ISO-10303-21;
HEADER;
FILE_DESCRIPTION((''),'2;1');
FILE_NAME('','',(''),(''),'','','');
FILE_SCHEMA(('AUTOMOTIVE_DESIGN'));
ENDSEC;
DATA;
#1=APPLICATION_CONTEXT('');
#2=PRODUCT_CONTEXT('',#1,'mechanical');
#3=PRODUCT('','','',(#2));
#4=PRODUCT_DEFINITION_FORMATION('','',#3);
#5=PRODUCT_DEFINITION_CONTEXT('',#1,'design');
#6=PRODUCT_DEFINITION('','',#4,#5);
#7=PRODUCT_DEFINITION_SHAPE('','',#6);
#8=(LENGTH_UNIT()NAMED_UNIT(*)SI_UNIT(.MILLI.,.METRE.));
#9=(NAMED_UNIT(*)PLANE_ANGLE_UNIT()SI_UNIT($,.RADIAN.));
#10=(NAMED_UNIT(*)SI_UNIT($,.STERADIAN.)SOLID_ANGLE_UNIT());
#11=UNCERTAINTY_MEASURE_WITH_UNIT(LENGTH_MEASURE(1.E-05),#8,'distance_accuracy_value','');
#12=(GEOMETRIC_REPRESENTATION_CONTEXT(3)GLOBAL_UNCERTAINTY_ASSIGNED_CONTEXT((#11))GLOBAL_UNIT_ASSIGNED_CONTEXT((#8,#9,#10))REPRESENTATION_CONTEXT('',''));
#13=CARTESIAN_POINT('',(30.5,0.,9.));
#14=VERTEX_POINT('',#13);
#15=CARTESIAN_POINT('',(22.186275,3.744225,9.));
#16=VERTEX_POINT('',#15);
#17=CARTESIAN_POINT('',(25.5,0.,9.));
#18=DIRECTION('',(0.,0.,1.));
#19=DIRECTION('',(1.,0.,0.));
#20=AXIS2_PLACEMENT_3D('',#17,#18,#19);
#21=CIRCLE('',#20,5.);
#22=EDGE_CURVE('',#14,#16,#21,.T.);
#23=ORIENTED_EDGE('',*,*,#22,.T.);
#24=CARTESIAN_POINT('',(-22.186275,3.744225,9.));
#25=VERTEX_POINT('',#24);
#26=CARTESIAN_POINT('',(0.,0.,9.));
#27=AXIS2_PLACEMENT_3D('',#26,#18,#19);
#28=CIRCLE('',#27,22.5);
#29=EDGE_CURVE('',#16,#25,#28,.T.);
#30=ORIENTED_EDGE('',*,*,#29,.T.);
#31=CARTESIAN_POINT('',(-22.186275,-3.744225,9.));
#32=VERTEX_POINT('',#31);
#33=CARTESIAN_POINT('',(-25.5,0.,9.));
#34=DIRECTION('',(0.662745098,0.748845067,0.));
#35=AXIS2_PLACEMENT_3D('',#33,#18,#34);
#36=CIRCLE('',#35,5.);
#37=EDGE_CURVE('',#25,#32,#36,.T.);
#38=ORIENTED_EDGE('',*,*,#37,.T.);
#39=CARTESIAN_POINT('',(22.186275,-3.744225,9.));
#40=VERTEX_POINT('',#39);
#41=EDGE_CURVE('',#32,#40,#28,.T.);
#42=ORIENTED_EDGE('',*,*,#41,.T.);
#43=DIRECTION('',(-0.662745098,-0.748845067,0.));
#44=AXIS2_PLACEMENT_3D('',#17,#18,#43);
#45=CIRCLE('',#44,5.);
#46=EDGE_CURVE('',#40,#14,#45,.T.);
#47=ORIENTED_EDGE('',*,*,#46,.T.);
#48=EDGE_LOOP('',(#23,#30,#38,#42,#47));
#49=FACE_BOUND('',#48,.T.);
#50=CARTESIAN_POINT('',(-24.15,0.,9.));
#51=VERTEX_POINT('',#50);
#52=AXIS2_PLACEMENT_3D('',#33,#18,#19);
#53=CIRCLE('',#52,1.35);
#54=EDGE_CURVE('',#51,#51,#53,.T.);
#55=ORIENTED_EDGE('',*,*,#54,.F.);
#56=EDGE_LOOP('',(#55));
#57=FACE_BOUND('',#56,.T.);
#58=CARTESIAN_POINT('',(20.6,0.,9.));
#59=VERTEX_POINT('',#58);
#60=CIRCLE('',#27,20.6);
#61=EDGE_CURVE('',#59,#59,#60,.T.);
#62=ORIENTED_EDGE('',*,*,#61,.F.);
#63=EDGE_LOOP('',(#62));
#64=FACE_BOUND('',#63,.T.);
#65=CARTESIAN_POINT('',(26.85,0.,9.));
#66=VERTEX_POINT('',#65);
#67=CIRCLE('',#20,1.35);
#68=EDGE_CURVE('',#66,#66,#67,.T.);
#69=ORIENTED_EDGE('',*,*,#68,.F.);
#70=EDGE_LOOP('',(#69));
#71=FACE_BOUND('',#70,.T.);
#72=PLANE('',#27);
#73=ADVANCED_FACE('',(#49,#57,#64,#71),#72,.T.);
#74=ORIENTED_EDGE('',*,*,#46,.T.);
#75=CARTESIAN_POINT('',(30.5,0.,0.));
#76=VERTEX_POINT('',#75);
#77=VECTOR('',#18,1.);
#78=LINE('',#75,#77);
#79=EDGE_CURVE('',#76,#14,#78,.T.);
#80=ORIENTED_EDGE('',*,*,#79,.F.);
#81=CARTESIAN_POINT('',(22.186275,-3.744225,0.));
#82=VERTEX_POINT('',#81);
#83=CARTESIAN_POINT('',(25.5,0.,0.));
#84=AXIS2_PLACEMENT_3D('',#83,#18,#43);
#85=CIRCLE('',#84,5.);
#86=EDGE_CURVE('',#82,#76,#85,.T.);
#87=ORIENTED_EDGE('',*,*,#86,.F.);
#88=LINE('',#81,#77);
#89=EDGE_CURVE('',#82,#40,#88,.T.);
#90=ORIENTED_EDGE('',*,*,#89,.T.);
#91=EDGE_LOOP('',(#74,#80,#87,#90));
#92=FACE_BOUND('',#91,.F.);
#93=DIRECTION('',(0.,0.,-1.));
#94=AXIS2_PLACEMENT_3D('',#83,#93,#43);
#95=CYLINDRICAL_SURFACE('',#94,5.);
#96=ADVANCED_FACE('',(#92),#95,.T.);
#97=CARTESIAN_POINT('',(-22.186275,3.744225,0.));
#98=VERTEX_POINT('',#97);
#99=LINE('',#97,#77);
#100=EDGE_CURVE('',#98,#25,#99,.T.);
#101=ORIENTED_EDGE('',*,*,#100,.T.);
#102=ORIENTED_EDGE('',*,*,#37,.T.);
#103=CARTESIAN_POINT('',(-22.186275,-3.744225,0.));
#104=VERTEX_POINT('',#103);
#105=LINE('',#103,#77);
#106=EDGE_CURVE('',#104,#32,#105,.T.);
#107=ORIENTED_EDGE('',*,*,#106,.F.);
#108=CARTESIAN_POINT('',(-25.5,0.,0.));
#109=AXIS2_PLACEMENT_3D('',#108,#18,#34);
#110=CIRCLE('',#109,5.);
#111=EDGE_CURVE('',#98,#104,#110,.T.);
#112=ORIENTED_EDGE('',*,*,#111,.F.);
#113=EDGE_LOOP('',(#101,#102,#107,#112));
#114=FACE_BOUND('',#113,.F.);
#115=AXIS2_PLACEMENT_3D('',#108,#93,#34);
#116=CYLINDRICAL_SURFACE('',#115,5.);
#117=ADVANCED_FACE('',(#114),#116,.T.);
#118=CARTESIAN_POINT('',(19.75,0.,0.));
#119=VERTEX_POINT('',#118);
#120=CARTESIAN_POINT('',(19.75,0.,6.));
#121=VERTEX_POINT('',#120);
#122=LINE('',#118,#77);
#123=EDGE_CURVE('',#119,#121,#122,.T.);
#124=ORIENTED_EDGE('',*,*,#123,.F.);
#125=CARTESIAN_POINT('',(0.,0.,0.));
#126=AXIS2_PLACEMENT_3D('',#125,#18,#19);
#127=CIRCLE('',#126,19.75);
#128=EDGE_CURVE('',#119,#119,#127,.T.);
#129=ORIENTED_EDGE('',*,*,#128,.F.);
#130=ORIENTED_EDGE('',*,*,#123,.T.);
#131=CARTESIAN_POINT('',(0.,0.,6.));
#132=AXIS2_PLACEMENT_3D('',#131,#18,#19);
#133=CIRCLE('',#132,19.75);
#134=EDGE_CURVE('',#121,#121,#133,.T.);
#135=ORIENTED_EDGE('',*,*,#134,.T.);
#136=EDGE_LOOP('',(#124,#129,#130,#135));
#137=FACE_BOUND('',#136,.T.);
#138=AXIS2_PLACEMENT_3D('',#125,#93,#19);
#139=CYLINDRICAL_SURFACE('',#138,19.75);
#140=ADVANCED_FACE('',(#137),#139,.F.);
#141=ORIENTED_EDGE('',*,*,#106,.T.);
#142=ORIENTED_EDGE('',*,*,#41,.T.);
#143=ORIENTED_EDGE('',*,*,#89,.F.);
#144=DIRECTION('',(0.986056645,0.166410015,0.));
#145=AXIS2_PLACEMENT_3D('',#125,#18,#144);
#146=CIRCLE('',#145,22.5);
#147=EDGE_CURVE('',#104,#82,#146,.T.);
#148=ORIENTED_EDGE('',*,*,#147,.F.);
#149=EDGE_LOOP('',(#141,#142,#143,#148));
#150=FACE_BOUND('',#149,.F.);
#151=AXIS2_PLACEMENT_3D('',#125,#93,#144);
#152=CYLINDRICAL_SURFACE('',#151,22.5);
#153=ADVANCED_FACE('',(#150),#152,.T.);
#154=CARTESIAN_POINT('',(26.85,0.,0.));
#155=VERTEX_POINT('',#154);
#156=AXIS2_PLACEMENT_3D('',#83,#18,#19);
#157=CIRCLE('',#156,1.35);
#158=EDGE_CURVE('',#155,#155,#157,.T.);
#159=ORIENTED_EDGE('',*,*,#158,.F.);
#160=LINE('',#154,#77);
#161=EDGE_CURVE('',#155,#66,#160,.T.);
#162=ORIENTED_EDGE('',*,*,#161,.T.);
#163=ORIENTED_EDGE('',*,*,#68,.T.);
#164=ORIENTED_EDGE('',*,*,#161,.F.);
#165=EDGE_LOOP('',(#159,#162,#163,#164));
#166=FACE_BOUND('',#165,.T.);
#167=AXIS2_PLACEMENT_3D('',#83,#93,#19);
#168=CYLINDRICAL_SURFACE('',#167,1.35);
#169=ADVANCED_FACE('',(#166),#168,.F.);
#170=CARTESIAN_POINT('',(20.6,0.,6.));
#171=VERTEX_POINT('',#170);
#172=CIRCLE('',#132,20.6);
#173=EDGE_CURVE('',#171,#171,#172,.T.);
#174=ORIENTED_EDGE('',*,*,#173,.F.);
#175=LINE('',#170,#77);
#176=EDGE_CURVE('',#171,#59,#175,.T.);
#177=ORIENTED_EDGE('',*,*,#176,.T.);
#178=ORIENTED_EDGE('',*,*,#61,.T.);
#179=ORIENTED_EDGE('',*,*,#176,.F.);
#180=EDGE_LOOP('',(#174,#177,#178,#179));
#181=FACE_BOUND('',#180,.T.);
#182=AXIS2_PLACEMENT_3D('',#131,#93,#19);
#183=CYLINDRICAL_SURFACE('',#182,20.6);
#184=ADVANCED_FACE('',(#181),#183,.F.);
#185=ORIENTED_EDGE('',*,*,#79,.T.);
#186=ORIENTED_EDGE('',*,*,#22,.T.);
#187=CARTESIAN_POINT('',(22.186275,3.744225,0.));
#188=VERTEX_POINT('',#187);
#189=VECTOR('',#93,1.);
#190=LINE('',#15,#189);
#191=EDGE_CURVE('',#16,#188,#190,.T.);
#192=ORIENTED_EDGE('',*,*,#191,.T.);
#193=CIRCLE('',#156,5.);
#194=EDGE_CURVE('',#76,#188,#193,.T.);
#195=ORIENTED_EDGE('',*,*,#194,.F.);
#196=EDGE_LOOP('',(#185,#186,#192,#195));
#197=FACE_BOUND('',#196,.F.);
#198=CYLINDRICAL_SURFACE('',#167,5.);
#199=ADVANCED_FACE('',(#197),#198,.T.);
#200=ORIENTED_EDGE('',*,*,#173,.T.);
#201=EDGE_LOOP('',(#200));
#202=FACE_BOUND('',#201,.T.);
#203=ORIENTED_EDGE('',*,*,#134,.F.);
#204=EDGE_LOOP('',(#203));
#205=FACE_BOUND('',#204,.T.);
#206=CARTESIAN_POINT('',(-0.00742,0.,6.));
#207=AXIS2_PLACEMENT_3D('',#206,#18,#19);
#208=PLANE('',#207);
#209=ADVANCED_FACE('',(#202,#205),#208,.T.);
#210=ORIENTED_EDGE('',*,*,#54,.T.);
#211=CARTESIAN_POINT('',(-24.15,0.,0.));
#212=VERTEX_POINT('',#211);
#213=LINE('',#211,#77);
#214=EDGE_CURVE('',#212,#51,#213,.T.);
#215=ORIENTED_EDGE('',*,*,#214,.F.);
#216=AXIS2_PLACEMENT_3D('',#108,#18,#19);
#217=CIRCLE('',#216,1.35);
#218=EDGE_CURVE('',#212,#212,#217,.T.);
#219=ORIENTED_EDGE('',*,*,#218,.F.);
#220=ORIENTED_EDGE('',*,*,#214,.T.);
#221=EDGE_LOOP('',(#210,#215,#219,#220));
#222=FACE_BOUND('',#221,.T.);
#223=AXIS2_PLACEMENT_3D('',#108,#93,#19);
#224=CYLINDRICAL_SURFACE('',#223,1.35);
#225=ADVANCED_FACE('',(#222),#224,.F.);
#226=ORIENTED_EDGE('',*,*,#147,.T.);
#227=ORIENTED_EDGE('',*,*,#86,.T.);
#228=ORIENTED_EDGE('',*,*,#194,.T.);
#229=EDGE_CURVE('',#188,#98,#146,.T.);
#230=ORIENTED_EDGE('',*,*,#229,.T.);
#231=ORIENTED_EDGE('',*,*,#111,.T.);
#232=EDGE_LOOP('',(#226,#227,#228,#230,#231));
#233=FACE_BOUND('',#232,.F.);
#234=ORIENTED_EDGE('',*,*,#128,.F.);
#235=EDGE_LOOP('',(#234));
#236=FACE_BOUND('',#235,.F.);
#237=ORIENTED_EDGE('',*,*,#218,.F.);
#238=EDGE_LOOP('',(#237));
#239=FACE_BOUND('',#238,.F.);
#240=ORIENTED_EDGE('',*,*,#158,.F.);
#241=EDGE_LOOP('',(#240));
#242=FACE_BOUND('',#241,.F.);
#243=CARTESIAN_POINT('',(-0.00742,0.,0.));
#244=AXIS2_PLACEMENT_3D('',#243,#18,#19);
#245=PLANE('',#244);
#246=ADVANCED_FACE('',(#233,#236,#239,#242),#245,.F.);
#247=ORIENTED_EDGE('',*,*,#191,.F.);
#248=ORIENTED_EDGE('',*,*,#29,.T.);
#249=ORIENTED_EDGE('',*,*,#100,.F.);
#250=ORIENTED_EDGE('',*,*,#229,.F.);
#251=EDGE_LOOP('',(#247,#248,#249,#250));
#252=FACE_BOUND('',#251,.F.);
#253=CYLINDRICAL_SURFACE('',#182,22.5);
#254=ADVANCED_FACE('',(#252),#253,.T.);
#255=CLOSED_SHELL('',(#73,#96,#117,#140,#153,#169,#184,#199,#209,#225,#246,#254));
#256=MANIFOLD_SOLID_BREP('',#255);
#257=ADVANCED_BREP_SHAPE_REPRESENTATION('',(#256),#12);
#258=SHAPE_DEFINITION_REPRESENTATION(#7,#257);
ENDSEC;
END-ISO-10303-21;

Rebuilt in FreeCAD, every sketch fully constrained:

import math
import FreeCAD as App
import Part
import Sketcher
Q = App.Units.Quantity

doc = App.newDocument("Part")
body = doc.addObject("PartDesign::Body", "Body")

# Sketch on XY plane
sketch1 = body.newObject("Sketcher::SketchObject", "Sketch")
sketch1.AttachmentSupport = (doc.getObject("XY_Plane"), [""])
sketch1.MapMode = "FlatFace"
sketch1.addGeometry([
    Part.ArcOfCircle(Part.Circle(App.Vector(0, 0, 0), App.Vector(0, 0, 1), 22.5), math.radians(170.42), math.radians(189.58)),
    Part.ArcOfCircle(Part.Circle(App.Vector(-25.5, 0, 0), App.Vector(0, 0, 1), 5), math.radians(48), math.radians(312)),
    Part.Circle(App.Vector(-25.5, 0, 0), App.Vector(0, 0, 1), 1.4),
], False)
sketch1.addConstraint([
    Sketcher.Constraint("Coincident", 0, 1, 1, 1),
    Sketcher.Constraint("Coincident", 1, 2, 0, 2),
    Sketcher.Constraint("Coincident", 0, 3, -1, 1),
    Sketcher.Constraint("Coincident", 2, 3, 1, 3),
    Sketcher.Constraint("PointOnObject", 1, 3, -1),
    Sketcher.Constraint("Radius", 1, Q("5 mm")),
    Sketcher.Constraint("Diameter", 2, Q("2.7 mm")),
    Sketcher.Constraint("Radius", 0, Q("22.5 mm")),
    Sketcher.Constraint("DistanceX", 1, 3, -1, 1, Q("25.5 mm")),
])
pad1 = body.newObject("PartDesign::Pad", "Pad")
pad1.Profile = sketch1
pad1.Length = 9
body2 = doc.addObject("PartDesign::Body", "Body001")

# Sketch on XY plane
sketch2 = body2.newObject("Sketcher::SketchObject", "Sketch001")
sketch2.AttachmentSupport = (doc.getObject("XY_Plane001"), [""])
sketch2.MapMode = "FlatFace"
sketch2.addGeometry([
    Part.ArcOfCircle(Part.Circle(App.Vector(0, 0, 0), App.Vector(0, 0, 1), 22.5), math.radians(0), math.radians(9.58)),  # 0
    Part.ArcOfCircle(Part.Circle(App.Vector(0, 0, 0), App.Vector(0, 0, 1), 22.5), math.radians(-9.58), math.radians(0)),  # 1
    Part.ArcOfCircle(Part.Circle(App.Vector(25.5, 0, 0), App.Vector(0, 0, 1), 5), math.radians(-132), math.radians(0)),  # 2
    Part.ArcOfCircle(Part.Circle(App.Vector(25.5, 0, 0), App.Vector(0, 0, 1), 5), math.radians(0), math.radians(132)),  # 3
    Part.Circle(App.Vector(25.5, 0, 0), App.Vector(0, 0, 1), 1.4),  # 4
], False)
sketch2.addConstraint([
    Sketcher.Constraint("Tangent", 0, 1, 1, 2),
    Sketcher.Constraint("Coincident", 1, 1, 2, 1),
    Sketcher.Constraint("Tangent", 2, 2, 3, 1),
    Sketcher.Constraint("Coincident", 3, 2, 0, 2),
    Sketcher.Constraint("Coincident", 0, 3, -1, 1),
    Sketcher.Constraint("Coincident", 4, 3, 2, 3),
    Sketcher.Constraint("Equal", 0, 1),
    Sketcher.Constraint("Equal", 2, 3),
    Sketcher.Constraint("PointOnObject", 2, 3, -1),
    Sketcher.Constraint("PointOnObject", 0, 1, -1),
    Sketcher.Constraint("PointOnObject", 2, 2, -1),
    Sketcher.Constraint("Radius", 2, Q("5 mm")),
    Sketcher.Constraint("Diameter", 4, Q("2.7 mm")),
    Sketcher.Constraint("Radius", 0, Q("22.5 mm")),
    Sketcher.Constraint("DistanceX", 0, 1, 2, 3, Q("3 mm")),
])
pad2 = body2.newObject("PartDesign::Pad", "Pad001")
pad2.Profile = sketch2
pad2.Length = 9
body3 = doc.addObject("PartDesign::Body", "Body002")

# Sketch on XY plane
sketch3 = body3.newObject("Sketcher::SketchObject", "Sketch002")
sketch3.AttachmentSupport = (doc.getObject("XY_Plane002"), [""])
sketch3.MapMode = "FlatFace"
sketch3.addGeometry([
    Part.ArcOfCircle(Part.Circle(App.Vector(0, 0, 0), App.Vector(0, 0, 1), 22.5), math.radians(-9.58), math.radians(0)),
    Part.ArcOfCircle(Part.Circle(App.Vector(0, 0, 0), App.Vector(0, 0, 1), 22.5), math.radians(0), math.radians(9.58)),
    Part.ArcOfCircle(Part.Circle(App.Vector(0, 0, 0), App.Vector(0, 0, 1), 22.5), math.radians(10), math.radians(350)),
    Part.Circle(App.Vector(0, 0, 0), App.Vector(0, 0, 1), 19.8),
], False)
sketch3.addConstraint([
    Sketcher.Constraint("Tangent", 0, 2, 1, 1),
    Sketcher.Constraint("Tangent", 1, 2, 2, 1),
    Sketcher.Constraint("Tangent", 2, 2, 0, 1),
    Sketcher.Constraint("Coincident", 0, 3, -1, 1),
    Sketcher.Constraint("Coincident", 3, 3, -1, 1),
    Sketcher.Constraint("PointOnObject", 0, 2, -1),
    Sketcher.Constraint("Vertical", 1, 2, 2, 2),
    Sketcher.Constraint("Diameter", 3, Q("39.5 mm")),
    Sketcher.Constraint("Radius", 0, Q("22.5 mm")),
    Sketcher.Constraint("DistanceY", 2, 2, 1, 2, Q("7.488451 mm")),
])
pad3 = body3.newObject("PartDesign::Pad", "Pad002")
pad3.Profile = sketch3
pad3.Length = 6
body.AllowCompound = True
doc.recompute()

boolean = body.newObject("PartDesign::Boolean", "Boolean")
boolean.Type = "Fuse"
boolean.addObjects([body2])
doc.recompute()

boolean2 = body.newObject("PartDesign::Boolean", "Boolean001")
boolean2.Type = "Fuse"
boolean2.addObjects([body3])

# Sketch on XY plane
sketch4 = body.newObject("Sketcher::SketchObject", "Sketch003")
sketch4.AttachmentSupport = (doc.getObject("XY_Plane"), [""])
sketch4.MapMode = "FlatFace"
sketch4.AttachmentOffset = App.Placement(App.Vector(0, 0, 6), App.Rotation())
sketch4.addGeometry([
    Part.Circle(App.Vector(0, 0, 0), App.Vector(0, 0, 1), 22),
    Part.Circle(App.Vector(0, 0, 0), App.Vector(0, 0, 1), 21),
], False)
sketch4.addConstraint([
    Sketcher.Constraint("Coincident", 0, 3, -1, 1),
    Sketcher.Constraint("Coincident", 1, 3, -1, 1),
    Sketcher.Constraint("Diameter", 0, Q("45 mm")),
    Sketcher.Constraint("Diameter", 1, Q("41.2 mm")),
])
pad4 = body.newObject("PartDesign::Pad", "Pad003")
pad4.Profile = sketch4
pad4.Length = 3

doc.recompute()
